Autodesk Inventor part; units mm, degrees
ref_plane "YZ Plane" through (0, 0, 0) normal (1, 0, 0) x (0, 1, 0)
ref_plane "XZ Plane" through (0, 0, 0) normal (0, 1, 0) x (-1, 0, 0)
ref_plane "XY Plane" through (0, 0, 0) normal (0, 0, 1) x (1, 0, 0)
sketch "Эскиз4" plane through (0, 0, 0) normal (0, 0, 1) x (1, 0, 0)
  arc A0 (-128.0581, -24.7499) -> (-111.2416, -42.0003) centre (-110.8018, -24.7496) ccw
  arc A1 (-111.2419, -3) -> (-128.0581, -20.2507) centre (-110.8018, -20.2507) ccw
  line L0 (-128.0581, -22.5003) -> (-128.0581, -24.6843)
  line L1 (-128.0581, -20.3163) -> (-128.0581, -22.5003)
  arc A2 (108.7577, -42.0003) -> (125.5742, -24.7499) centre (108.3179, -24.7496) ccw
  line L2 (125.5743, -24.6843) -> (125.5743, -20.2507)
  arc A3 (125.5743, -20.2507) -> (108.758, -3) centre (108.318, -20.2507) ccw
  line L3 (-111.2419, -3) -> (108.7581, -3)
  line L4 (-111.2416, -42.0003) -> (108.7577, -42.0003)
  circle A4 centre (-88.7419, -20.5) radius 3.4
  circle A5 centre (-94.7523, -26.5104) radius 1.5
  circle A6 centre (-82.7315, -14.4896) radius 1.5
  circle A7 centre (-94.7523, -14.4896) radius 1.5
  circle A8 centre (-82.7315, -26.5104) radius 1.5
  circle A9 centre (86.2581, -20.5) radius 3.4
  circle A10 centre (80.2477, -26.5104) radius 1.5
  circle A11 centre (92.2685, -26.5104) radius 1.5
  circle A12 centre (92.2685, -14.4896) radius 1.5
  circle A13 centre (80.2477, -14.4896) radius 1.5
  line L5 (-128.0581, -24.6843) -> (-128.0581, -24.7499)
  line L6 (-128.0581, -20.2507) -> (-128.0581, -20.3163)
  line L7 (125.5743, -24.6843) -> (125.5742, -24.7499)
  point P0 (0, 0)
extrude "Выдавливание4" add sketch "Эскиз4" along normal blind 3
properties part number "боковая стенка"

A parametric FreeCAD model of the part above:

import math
import FreeCAD as App
import Part
import Sketcher
from FreeCAD import Vector

doc = App.newDocument("Part")
params = doc.addObject("Spreadsheet::Sheet", "Params")
for row, (alias, value) in enumerate([
    ("sketch1_diameter", "3 mm"),
    ("sketch1_diameter2", "6.8 mm"),
    ("sketch1_width", "220 mm"),
    ("pad1_length", "3 mm"),
], start=1):
    params.set(f"A{row}", alias)
    params.set(f"B{row}", "=" + value)
    params.setAlias(f"B{row}", alias)

body = doc.addObject("PartDesign::Body", "Body")

# Sketch on XY plane
sketch1 = doc.addObject("Sketcher::SketchObject", "Sketch")
body.addObject(sketch1)
sketch1.AttachmentSupport = (doc.XY_Plane, [""])
sketch1.MapMode = "FlatFace"
sketch1.addGeometry([
    Part.LineSegment(Vector(-128.06, -20.25, 0), Vector(-128.06, -24.75, 0)),  # 0
    Part.ArcOfCircle(Part.Circle(Vector(-110.8, -24.75, 0), Vector(0, 0, 1), 17.26), math.radians(-180), math.radians(-91)),  # 1
    Part.LineSegment(Vector(-111.24, -42, 0), Vector(108.76, -42, 0)),  # 2
    Part.ArcOfCircle(Part.Circle(Vector(108.32, -24.75, 0), Vector(0, 0, 1), 17.26), math.radians(-89), math.radians(0)),  # 3
    Part.LineSegment(Vector(125.57, -24.75, 0), Vector(125.57, -24.68, 0)),  # 4
    Part.LineSegment(Vector(125.57, -24.68, 0), Vector(125.57, -20.25, 0)),  # 5
    Part.ArcOfCircle(Part.Circle(Vector(108.32, -20.25, 0), Vector(0, 0, 1), 17.26), math.radians(0), math.radians(89)),  # 6
    Part.LineSegment(Vector(108.76, -3, 0), Vector(-111.24, -3, 0)),  # 7
    Part.ArcOfCircle(Part.Circle(Vector(-110.8, -20.25, 0), Vector(0, 0, 1), 17.26), math.radians(91), math.radians(180)),  # 8
    Part.Circle(Vector(-94.75, -26.51, 0), Vector(0, 0, 1), 1.5),  # 9
    Part.Circle(Vector(-82.73, -26.51, 0), Vector(0, 0, 1), 1.5),  # 10
    Part.Circle(Vector(80.25, -26.51, 0), Vector(0, 0, 1), 1.5),  # 11
    Part.Circle(Vector(92.27, -26.51, 0), Vector(0, 0, 1), 1.5),  # 12
    Part.Circle(Vector(-88.74, -20.5, 0), Vector(0, 0, 1), 3.4),  # 13
    Part.Circle(Vector(-94.75, -14.49, 0), Vector(0, 0, 1), 1.5),  # 14
    Part.Circle(Vector(-82.73, -14.49, 0), Vector(0, 0, 1), 1.5),  # 15
    Part.Circle(Vector(86.26, -20.5, 0), Vector(0, 0, 1), 3.4),  # 16
    Part.Circle(Vector(80.25, -14.49, 0), Vector(0, 0, 1), 1.5),  # 17
    Part.Circle(Vector(92.27, -14.49, 0), Vector(0, 0, 1), 1.5),  # 18
], False)
sketch1.addConstraint([
    Sketcher.Constraint("Tangent", 0, 2, 1, 1),
    Sketcher.Constraint("Coincident", 1, 2, 2, 1),
    Sketcher.Constraint("Coincident", 2, 2, 3, 1),
    Sketcher.Constraint("Coincident", 3, 2, 4, 1),
    Sketcher.Constraint("Coincident", 4, 2, 5, 1),
    Sketcher.Constraint("Tangent", 5, 2, 6, 1),
    Sketcher.Constraint("Coincident", 6, 2, 7, 1),
    Sketcher.Constraint("Coincident", 7, 2, 8, 1),
    Sketcher.Constraint("Tangent", 8, 2, 0, 1),
    Sketcher.Constraint("Vertical", 0),
    Sketcher.Constraint("Horizontal", 2),
    Sketcher.Constraint("Vertical", 4),
    Sketcher.Constraint("Vertical", 5),
    Sketcher.Constraint("Horizontal", 7),
    Sketcher.Constraint("Equal", 1, 3),
    Sketcher.Constraint("Equal", 3, 6),
    Sketcher.Constraint("Equal", 6, 8),
    Sketcher.Constraint("Equal", 9, 10),
    Sketcher.Constraint("Equal", 10, 11),
    Sketcher.Constraint("Equal", 11, 12),
    Sketcher.Constraint("Equal", 12, 14),
    Sketcher.Constraint("Equal", 14, 15),
    Sketcher.Constraint("Equal", 13, 16),
    Sketcher.Constraint("Equal", 15, 17),
    Sketcher.Constraint("Equal", 17, 18),
    Sketcher.Constraint("Horizontal", 1, 3, 3, 3),
    Sketcher.Constraint("Horizontal", 6, 3, 8, 3),
    Sketcher.Constraint("Horizontal", 9, 3, 10, 3),
    Sketcher.Constraint("Horizontal", 10, 3, 11, 3),
    Sketcher.Constraint("Horizontal", 11, 3, 12, 3),
    Sketcher.Constraint("Horizontal", 14, 3, 15, 3),
    Sketcher.Constraint("Horizontal", 13, 3, 16, 3),
    Sketcher.Constraint("Horizontal", 15, 3, 17, 3),
    Sketcher.Constraint("Horizontal", 17, 3, 18, 3),
    Sketcher.Constraint("Horizontal", 0, 2, 3, 2),
    Sketcher.Constraint("Vertical", 9, 3, 14, 3),
    Sketcher.Constraint("Vertical", 10, 3, 15, 3),
    Sketcher.Constraint("Vertical", 11, 3, 17, 3),
    Sketcher.Constraint("Vertical", 12, 3, 18, 3),
    Sketcher.Constraint("Diameter", 9, 3.0),
    Sketcher.Constraint("Diameter", 13, 6.8),
    Sketcher.Constraint("DistanceX", 7, 2, 7, 1, 220.0),
    Sketcher.Constraint("DistanceY", 6, 2, -1, 1, 3.0),
    Sketcher.Constraint("DistanceX", 9, 3, 11, 3, 175.0),
    Sketcher.Constraint("DistanceX", 10, 3, 12, 3, 175.0),
    Sketcher.Constraint("DistanceY", 13, 3, -1, 1, 20.5),
    Sketcher.Constraint("Radius", 1, 17.2563),
    Sketcher.Constraint("DistanceX", 7, 2, 13, 3, 22.5),
    Sketcher.Constraint("DistanceY", 0, 2, -1, 1, 24.75),
    Sketcher.Constraint("DistanceX", 8, 3, 13, 3, 22.06),
    Sketcher.Constraint("DistanceY", 1, 3, 14, 3, 10.26),
    Sketcher.Constraint("DistanceX", 16, 3, 6, 3, 22.06),
    Sketcher.Constraint("DistanceY", 1, 2, 9, 3, 15.49),
    Sketcher.Constraint("DistanceX", 2, 1, 2, 2, 219.9993),
    Sketcher.Constraint("DistanceY", 4, 1, 4, 2, 0.0656),
    Sketcher.Constraint("DistanceX", -1, 1, 3, 3, 108.318),
    Sketcher.Constraint("DistanceX", 9, 3, -1, 1, 94.7523),
    Sketcher.Constraint("DistanceX", 10, 3, -1, 1, 82.7315),
])
sketch1.setExpression("Constraints[39]", "Params.sketch1_diameter")
sketch1.setExpression("Constraints[40]", "Params.sketch1_diameter2")
sketch1.setExpression("Constraints[41]", "Params.sketch1_width")
pad1 = doc.addObject("PartDesign::Pad", "Pad")
body.addObject(pad1)
pad1.Profile = sketch1
pad1.setExpression("Length", "Params.pad1_length")

doc.recompute()
